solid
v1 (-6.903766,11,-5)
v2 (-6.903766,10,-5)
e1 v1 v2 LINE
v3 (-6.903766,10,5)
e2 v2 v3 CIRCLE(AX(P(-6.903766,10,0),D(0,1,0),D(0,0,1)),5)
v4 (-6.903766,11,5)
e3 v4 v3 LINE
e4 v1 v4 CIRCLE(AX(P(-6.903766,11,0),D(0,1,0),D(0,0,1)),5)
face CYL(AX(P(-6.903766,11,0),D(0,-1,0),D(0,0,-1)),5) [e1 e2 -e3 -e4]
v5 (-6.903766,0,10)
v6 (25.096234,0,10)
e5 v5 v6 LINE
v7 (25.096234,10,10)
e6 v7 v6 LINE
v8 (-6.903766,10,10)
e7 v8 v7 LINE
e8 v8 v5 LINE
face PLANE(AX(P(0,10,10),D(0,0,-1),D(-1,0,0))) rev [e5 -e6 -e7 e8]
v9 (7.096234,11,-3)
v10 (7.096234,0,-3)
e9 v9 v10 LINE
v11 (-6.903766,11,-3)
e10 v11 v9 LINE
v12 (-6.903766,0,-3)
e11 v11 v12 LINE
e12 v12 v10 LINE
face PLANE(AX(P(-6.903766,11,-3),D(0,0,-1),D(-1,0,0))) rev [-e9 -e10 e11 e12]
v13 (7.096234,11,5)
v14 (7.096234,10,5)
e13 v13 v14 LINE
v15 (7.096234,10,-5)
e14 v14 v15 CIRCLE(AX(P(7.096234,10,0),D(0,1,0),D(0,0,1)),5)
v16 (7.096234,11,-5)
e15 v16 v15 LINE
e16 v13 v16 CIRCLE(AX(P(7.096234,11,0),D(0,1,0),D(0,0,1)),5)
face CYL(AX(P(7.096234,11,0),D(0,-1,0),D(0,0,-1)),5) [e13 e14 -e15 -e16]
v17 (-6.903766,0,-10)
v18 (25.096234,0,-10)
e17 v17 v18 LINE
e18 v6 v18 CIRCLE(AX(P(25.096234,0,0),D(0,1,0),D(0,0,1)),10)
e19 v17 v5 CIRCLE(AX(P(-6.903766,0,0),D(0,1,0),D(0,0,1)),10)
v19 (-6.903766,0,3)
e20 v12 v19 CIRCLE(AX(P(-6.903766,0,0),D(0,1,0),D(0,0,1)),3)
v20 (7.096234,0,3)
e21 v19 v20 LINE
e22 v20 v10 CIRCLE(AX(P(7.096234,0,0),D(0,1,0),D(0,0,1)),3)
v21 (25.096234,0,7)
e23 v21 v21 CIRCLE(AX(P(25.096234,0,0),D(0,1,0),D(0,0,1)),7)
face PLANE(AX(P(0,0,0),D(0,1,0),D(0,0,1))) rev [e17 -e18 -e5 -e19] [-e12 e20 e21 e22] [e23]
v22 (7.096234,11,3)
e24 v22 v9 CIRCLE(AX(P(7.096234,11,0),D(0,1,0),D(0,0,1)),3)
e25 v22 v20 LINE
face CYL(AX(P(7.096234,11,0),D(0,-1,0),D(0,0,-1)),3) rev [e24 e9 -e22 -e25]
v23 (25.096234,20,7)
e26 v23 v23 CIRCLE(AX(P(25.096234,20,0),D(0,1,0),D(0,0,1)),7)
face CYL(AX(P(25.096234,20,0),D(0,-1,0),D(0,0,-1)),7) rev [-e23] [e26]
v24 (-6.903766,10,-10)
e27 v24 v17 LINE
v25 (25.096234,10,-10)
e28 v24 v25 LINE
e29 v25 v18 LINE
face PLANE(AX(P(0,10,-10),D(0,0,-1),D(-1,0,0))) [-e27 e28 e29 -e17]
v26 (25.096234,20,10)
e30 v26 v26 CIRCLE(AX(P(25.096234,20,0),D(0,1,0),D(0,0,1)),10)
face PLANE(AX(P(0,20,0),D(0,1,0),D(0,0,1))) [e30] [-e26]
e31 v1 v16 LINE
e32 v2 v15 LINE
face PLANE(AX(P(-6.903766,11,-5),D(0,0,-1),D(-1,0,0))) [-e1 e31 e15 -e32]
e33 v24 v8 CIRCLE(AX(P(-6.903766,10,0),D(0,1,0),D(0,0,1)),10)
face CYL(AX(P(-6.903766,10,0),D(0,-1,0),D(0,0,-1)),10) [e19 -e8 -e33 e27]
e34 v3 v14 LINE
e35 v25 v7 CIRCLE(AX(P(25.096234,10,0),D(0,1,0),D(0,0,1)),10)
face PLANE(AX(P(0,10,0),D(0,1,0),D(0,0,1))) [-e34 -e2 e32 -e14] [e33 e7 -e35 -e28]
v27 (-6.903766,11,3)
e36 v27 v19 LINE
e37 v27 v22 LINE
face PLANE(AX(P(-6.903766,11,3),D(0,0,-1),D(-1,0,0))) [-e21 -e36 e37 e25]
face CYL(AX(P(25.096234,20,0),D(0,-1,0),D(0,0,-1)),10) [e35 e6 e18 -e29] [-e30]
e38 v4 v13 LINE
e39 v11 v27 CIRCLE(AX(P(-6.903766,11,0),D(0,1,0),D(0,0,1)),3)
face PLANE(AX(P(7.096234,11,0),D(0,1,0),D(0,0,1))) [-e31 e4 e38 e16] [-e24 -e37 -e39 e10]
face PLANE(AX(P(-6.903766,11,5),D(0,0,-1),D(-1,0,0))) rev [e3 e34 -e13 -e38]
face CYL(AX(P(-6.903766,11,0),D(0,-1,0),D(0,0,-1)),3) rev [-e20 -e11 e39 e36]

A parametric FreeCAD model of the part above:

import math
import FreeCAD as App
import Part
import Sketcher

doc = App.newDocument("Part")
params = doc.addObject("Spreadsheet::Sheet", "Params")
for row, (alias, value) in enumerate([
    ("sketch1_radius", "10 mm"),
    ("sketch1_radius2", "5 mm"),
    ("sketch1_width", "32 mm"),
    ("sketch1_width2", "14 mm"),
    ("pad1_length", "10 mm"),
    ("sketch2_diameter", "14 mm"),
    ("sketch2_radius", "10 mm"),
    ("pad2_length", "20 mm"),
    ("sketch3_radius", "5 mm"),
    ("sketch3_radius2", "3 mm"),
    ("sketch3_width", "14 mm"),
    ("pad3_length", "11 mm"),
], start=1):
    params.set(f"A{row}", alias)
    params.set(f"B{row}", "=" + value)
    params.setAlias(f"B{row}", alias)

body = doc.addObject("PartDesign::Body", "Body")

# Sketch on XZ plane
sketch1 = body.newObject("Sketcher::SketchObject", "Sketch")
sketch1.AttachmentSupport = (doc.getObject("XZ_Plane"), [""])
sketch1.MapMode = "FlatFace"
sketch1.addGeometry([
    Part.LineSegment(App.Vector(25.096234, -10, 0), App.Vector(-6.903766, -10, 0)),  # 0
    Part.ArcOfCircle(Part.Circle(App.Vector(-6.903766, 0, 0), App.Vector(0, 0, 1), 10), math.radians(90), math.radians(270)),  # 1
    Part.LineSegment(App.Vector(-6.903766, 10, 0), App.Vector(25.096234, 10, 0)),  # 2
    Part.ArcOfCircle(Part.Circle(App.Vector(25.096234, 0, 0), App.Vector(0, 0, 1), 10), math.radians(90), math.radians(270)),  # 3
    Part.LineSegment(App.Vector(7.096234, 5, 0), App.Vector(-6.903766, 5, 0)),  # 4
    Part.ArcOfCircle(Part.Circle(App.Vector(-6.903766, 0, 0), App.Vector(0, 0, 1), 5), math.radians(90), math.radians(270)),  # 5
    Part.LineSegment(App.Vector(-6.903766, -5, 0), App.Vector(7.096234, -5, 0)),  # 6
    Part.ArcOfCircle(Part.Circle(App.Vector(7.096234, 0, 0), App.Vector(0, 0, 1), 5), math.radians(-90), math.radians(90)),  # 7
], False)
sketch1.addConstraint([
    Sketcher.Constraint("Tangent", 0, 2, 1, 2),
    Sketcher.Constraint("Tangent", 1, 1, 2, 1),
    Sketcher.Constraint("Tangent", 2, 2, 3, 1),
    Sketcher.Constraint("Tangent", 3, 2, 0, 1),
    Sketcher.Constraint("Tangent", 4, 2, 5, 1),
    Sketcher.Constraint("Tangent", 5, 2, 6, 1),
    Sketcher.Constraint("Tangent", 6, 2, 7, 1),
    Sketcher.Constraint("Tangent", 7, 2, 4, 1),
    Sketcher.Constraint("Horizontal", 0),
    Sketcher.Constraint("Horizontal", 2),
    Sketcher.Constraint("Horizontal", 4),
    Sketcher.Constraint("Horizontal", 6),
    Sketcher.Constraint("Coincident", 5, 3, 1, 3),
    Sketcher.Constraint("PointOnObject", 1, 3, -1),
    Sketcher.Constraint("Radius", 1, 10.0),
    Sketcher.Constraint("Radius", 5, 5.0),
    Sketcher.Constraint("DistanceX", 0, 2, 0, 1, 32.0),
    Sketcher.Constraint("DistanceX", 4, 2, 4, 1, 14.0),
    Sketcher.Constraint("DistanceX", 1, 3, -1, 1, 6.903766),
])
sketch1.setExpression("Constraints[14]", "Params.sketch1_radius")
sketch1.setExpression("Constraints[15]", "Params.sketch1_radius2")
sketch1.setExpression("Constraints[16]", "Params.sketch1_width")
sketch1.setExpression("Constraints[17]", "Params.sketch1_width2")
pad1 = body.newObject("PartDesign::Pad", "Pad")
pad1.Profile = sketch1
pad1.setExpression("Length", "Params.pad1_length")
pad1.Reversed = True

# Sketch on XZ plane
sketch2 = body.newObject("Sketcher::SketchObject", "Sketch001")
sketch2.AttachmentSupport = (doc.getObject("XZ_Plane"), [""])
sketch2.MapMode = "FlatFace"
sketch2.addGeometry([
    Part.ArcOfCircle(Part.Circle(App.Vector(25.096234, 0, 0), App.Vector(0, 0, 1), 10), math.radians(-90), math.radians(0)),
    Part.ArcOfCircle(Part.Circle(App.Vector(25.096234, 0, 0), App.Vector(0, 0, 1), 10), math.radians(90), math.radians(270)),
    Part.ArcOfCircle(Part.Circle(App.Vector(25.096234, 0, 0), App.Vector(0, 0, 1), 10), math.radians(0), math.radians(90)),
    Part.Circle(App.Vector(25.096234, 0, 0), App.Vector(0, 0, 1), 7),
], False)
sketch2.addConstraint([
    Sketcher.Constraint("Tangent", 0, 1, 1, 2),
    Sketcher.Constraint("Tangent", 1, 1, 2, 2),
    Sketcher.Constraint("Tangent", 2, 1, 0, 2),
    Sketcher.Constraint("Coincident", 3, 3, 0, 3),
    Sketcher.Constraint("Symmetric", 0, 1, 1, 1, -1),
    Sketcher.Constraint("PointOnObject", 2, 1, -1),
    Sketcher.Constraint("Vertical", 3, 3, 0, 1),
    Sketcher.Constraint("Diameter", 3, 14.0),
    Sketcher.Constraint("Radius", 0, 10.0),
    Sketcher.Constraint("DistanceX", -1, 1, 0, 3, 25.096234),
])
sketch2.setExpression("Constraints[7]", "Params.sketch2_diameter")
sketch2.setExpression("Constraints[8]", "Params.sketch2_radius")
pad2 = body.newObject("PartDesign::Pad", "Pad001")
pad2.Profile = sketch2
pad2.setExpression("Length", "Params.pad2_length")
pad2.Reversed = True

# Sketch on XZ plane
sketch3 = body.newObject("Sketcher::SketchObject", "Sketch002")
sketch3.AttachmentSupport = (doc.getObject("XZ_Plane"), [""])
sketch3.MapMode = "FlatFace"
sketch3.addGeometry([
    Part.LineSegment(App.Vector(7.096234, -5, 0), App.Vector(-6.903766, -5, 0)),  # 0
    Part.ArcOfCircle(Part.Circle(App.Vector(-6.903766, 0, 0), App.Vector(0, 0, 1), 5), math.radians(90), math.radians(270)),  # 1
    Part.LineSegment(App.Vector(-6.903766, 5, 0), App.Vector(7.096234, 5, 0)),  # 2
    Part.ArcOfCircle(Part.Circle(App.Vector(7.096234, 0, 0), App.Vector(0, 0, 1), 5), math.radians(-90), math.radians(90)),  # 3
    Part.LineSegment(App.Vector(-6.903766, -3, 0), App.Vector(7.096234, -3, 0)),  # 4
    Part.ArcOfCircle(Part.Circle(App.Vector(7.096234, 0, 0), App.Vector(0, 0, 1), 3), math.radians(-90), math.radians(90)),  # 5
    Part.LineSegment(App.Vector(7.096234, 3, 0), App.Vector(-6.903766, 3, 0)),  # 6
    Part.ArcOfCircle(Part.Circle(App.Vector(-6.903766, 0, 0), App.Vector(0, 0, 1), 3), math.radians(90), math.radians(270)),  # 7
], False)
sketch3.addConstraint([
    Sketcher.Constraint("Tangent", 0, 2, 1, 2),
    Sketcher.Constraint("Tangent", 1, 1, 2, 1),
    Sketcher.Constraint("Tangent", 2, 2, 3, 2),
    Sketcher.Constraint("Tangent", 3, 1, 0, 1),
    Sketcher.Constraint("Tangent", 4, 2, 5, 1),
    Sketcher.Constraint("Tangent", 5, 2, 6, 1),
    Sketcher.Constraint("Tangent", 6, 2, 7, 1),
    Sketcher.Constraint("Tangent", 7, 2, 4, 1),
    Sketcher.Constraint("Horizontal", 0),
    Sketcher.Constraint("Horizontal", 2),
    Sketcher.Constraint("Horizontal", 4),
    Sketcher.Constraint("Horizontal", 6),
    Sketcher.Constraint("Coincident", 5, 3, 3, 3),
    Sketcher.Constraint("PointOnObject", 1, 3, -1),
    Sketcher.Constraint("Vertical", 7, 3, 0, 2),
    Sketcher.Constraint("Radius", 1, 5.0),
    Sketcher.Constraint("Radius", 5, 3.0),
    Sketcher.Constraint("DistanceX", 0, 2, 0, 1, 14.0),
    Sketcher.Constraint("DistanceX", 1, 3, -1, 1, 6.903766),
])
sketch3.setExpression("Constraints[15]", "Params.sketch3_radius")
sketch3.setExpression("Constraints[16]", "Params.sketch3_radius2")
sketch3.setExpression("Constraints[17]", "Params.sketch3_width")
pad3 = body.newObject("PartDesign::Pad", "Pad002")
pad3.Profile = sketch3
pad3.setExpression("Length", "Params.pad3_length")
pad3.Reversed = True

doc.recompute()
